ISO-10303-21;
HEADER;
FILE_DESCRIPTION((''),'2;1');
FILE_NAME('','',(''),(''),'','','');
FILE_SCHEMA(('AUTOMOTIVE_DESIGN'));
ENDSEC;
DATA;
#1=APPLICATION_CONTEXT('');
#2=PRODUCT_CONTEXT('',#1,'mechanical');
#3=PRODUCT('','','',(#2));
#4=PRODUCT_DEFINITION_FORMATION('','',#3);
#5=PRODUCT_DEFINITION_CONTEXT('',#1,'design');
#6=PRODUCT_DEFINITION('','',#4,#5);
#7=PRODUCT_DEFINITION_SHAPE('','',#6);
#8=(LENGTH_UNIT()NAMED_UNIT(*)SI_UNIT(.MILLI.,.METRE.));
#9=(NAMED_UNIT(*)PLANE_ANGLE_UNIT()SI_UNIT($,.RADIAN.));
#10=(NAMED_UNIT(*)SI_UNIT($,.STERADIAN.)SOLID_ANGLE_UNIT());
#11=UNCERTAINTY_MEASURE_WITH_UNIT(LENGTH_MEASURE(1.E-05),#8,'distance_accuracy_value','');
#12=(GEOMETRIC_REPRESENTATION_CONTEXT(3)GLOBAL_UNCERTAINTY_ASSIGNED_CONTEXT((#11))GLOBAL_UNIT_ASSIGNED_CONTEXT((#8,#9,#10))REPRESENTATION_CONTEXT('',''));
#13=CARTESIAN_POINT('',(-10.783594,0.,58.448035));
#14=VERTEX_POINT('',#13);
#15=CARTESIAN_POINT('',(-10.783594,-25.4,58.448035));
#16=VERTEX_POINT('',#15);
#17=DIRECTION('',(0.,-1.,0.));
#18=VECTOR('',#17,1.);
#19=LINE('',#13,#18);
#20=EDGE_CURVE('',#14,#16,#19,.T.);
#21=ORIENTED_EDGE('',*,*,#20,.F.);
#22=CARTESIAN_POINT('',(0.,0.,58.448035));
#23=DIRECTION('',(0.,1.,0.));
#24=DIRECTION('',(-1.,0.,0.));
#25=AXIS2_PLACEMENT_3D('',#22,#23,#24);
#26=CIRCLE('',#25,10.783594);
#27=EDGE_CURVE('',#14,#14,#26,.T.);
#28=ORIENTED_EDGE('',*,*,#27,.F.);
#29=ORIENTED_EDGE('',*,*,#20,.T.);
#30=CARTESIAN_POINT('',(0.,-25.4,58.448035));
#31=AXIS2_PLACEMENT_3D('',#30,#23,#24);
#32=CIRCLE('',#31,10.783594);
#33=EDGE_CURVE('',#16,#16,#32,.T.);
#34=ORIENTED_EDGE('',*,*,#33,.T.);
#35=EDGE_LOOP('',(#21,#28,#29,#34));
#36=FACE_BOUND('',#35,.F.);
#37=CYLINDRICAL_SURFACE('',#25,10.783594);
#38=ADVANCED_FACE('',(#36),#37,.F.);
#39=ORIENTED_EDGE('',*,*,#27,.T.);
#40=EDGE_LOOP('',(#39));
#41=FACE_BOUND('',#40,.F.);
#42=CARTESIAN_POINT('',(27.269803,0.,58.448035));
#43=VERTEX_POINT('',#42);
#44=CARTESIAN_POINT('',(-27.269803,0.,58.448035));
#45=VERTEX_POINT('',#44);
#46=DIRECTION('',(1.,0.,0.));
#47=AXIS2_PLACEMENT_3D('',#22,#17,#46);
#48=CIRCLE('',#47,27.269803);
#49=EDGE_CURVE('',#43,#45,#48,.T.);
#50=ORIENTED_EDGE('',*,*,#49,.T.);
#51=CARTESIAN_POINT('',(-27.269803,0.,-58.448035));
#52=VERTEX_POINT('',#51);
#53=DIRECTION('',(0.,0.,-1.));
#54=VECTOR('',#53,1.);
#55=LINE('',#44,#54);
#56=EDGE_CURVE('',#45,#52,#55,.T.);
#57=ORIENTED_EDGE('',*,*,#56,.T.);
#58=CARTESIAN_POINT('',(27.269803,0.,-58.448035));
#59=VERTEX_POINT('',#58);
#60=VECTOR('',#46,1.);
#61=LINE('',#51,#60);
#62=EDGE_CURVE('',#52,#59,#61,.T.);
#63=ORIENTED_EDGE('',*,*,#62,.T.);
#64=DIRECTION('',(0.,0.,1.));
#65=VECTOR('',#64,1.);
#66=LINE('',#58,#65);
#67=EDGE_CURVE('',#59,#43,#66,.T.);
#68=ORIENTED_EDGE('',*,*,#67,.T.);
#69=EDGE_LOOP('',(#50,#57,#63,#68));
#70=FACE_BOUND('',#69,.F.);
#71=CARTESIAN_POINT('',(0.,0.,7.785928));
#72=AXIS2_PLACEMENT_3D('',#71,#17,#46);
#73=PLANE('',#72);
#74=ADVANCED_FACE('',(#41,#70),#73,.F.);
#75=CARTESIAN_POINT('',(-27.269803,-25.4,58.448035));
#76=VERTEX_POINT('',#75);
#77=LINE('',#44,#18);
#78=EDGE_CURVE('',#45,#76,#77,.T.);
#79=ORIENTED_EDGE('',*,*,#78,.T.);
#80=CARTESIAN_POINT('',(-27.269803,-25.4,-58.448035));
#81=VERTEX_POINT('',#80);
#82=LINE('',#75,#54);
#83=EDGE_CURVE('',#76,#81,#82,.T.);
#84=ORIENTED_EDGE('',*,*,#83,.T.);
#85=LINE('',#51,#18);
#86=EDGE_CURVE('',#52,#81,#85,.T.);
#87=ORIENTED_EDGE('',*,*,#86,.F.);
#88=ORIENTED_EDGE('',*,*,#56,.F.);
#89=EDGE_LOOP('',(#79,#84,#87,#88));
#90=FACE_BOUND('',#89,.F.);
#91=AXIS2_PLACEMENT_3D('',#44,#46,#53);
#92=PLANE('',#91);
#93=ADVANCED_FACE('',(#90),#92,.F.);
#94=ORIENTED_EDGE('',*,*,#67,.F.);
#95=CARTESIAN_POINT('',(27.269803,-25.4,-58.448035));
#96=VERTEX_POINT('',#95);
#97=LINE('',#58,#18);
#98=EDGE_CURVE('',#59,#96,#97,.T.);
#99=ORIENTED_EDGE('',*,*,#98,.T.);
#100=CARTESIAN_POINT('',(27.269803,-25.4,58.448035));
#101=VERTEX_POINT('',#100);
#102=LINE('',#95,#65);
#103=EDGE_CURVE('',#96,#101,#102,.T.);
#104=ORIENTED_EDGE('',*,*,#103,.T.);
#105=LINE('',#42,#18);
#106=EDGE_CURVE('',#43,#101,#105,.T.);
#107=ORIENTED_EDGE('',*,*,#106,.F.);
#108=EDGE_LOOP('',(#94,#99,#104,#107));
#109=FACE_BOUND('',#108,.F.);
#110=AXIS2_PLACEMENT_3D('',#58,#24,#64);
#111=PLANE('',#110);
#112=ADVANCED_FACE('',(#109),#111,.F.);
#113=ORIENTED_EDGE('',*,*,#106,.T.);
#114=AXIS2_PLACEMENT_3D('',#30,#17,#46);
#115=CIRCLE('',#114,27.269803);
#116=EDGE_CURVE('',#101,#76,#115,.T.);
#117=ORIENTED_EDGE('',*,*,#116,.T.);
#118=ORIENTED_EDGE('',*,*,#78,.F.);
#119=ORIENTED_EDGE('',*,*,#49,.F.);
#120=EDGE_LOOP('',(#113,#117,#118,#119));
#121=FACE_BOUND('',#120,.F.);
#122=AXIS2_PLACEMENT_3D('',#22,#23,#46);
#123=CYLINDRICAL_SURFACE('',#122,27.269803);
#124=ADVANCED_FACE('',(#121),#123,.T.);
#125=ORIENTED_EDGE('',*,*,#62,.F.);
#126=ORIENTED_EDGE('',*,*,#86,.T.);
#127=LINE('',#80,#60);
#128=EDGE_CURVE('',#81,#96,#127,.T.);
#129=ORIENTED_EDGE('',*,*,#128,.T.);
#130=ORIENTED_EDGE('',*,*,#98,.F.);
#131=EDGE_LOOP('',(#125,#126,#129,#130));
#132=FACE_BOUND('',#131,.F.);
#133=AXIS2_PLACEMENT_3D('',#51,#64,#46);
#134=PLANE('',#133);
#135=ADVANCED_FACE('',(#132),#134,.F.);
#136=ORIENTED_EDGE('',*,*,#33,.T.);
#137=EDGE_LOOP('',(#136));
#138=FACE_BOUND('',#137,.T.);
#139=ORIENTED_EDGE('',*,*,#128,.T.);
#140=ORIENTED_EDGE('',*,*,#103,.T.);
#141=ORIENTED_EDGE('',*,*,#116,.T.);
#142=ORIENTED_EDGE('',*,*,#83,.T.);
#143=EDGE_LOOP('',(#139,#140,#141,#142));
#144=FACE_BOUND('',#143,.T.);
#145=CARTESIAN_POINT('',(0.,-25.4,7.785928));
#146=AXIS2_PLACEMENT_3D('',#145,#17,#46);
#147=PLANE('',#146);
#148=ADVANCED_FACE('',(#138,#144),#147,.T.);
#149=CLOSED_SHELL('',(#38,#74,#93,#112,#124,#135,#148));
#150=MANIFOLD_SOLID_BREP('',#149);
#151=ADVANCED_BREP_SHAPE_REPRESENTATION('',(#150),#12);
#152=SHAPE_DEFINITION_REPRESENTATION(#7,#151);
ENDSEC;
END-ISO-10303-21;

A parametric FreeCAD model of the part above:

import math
import FreeCAD as App
import Part
import Sketcher

V = App.Vector
Q = App.Units.Quantity

doc = App.newDocument("Part")
body = doc.addObject("PartDesign::Body", "Body")

sketch1 = body.newObject("Sketcher::SketchObject", "Sketch")
sketch1.AttachmentSupport = (doc.getObject("XZ_Plane"), [""])
sketch1.MapMode = "FlatFace"
sketch1.addGeometry(Part.LineSegment(V(-27, 58, 0), V(-27, -58, 0)), False)
sketch1.addGeometry(Part.LineSegment(V(-27, -58, 0), V(27, -58, 0)), False)
sketch1.addGeometry(Part.LineSegment(V(27, -58, 0), V(27, 58, 0)), False)
sketch1.addGeometry(Part.ArcOfCircle(Part.Circle(V(0, 58, 0), V(0, 0, 1), 27), math.radians(0), math.radians(180)), False)
sketch1.addGeometry(Part.Circle(V(0, 58, 0), V(0, 0, 1), 11), False)
sketch1.addConstraint(Sketcher.Constraint("Coincident", 0, 2, 1, 1))
sketch1.addConstraint(Sketcher.Constraint("Coincident", 1, 2, 2, 1))
sketch1.addConstraint(Sketcher.Constraint("Tangent", 2, 2, 3, 1))
sketch1.addConstraint(Sketcher.Constraint("Tangent", 3, 2, 0, 1))
sketch1.addConstraint(Sketcher.Constraint("Vertical", 0))
sketch1.addConstraint(Sketcher.Constraint("Horizontal", 1))
sketch1.addConstraint(Sketcher.Constraint("Vertical", 2))
sketch1.addConstraint(Sketcher.Constraint("Coincident", 4, 3, 3, 3))
sketch1.addConstraint(Sketcher.Constraint("Symmetric", 0, 2, 2, 2, -1, 1))
sketch1.addConstraint(Sketcher.Constraint("Diameter", 4, 21.567188))
sketch1.addConstraint(Sketcher.Constraint("Radius", 3, 27.269803))
sketch1.addConstraint(Sketcher.Constraint("DistanceY", 0, 2, 0, 1, 116.89607))
pad1 = body.newObject("PartDesign::Pad", "Pad")
pad1.Profile = sketch1
pad1.Length = Q("1 in")

doc.recompute()
